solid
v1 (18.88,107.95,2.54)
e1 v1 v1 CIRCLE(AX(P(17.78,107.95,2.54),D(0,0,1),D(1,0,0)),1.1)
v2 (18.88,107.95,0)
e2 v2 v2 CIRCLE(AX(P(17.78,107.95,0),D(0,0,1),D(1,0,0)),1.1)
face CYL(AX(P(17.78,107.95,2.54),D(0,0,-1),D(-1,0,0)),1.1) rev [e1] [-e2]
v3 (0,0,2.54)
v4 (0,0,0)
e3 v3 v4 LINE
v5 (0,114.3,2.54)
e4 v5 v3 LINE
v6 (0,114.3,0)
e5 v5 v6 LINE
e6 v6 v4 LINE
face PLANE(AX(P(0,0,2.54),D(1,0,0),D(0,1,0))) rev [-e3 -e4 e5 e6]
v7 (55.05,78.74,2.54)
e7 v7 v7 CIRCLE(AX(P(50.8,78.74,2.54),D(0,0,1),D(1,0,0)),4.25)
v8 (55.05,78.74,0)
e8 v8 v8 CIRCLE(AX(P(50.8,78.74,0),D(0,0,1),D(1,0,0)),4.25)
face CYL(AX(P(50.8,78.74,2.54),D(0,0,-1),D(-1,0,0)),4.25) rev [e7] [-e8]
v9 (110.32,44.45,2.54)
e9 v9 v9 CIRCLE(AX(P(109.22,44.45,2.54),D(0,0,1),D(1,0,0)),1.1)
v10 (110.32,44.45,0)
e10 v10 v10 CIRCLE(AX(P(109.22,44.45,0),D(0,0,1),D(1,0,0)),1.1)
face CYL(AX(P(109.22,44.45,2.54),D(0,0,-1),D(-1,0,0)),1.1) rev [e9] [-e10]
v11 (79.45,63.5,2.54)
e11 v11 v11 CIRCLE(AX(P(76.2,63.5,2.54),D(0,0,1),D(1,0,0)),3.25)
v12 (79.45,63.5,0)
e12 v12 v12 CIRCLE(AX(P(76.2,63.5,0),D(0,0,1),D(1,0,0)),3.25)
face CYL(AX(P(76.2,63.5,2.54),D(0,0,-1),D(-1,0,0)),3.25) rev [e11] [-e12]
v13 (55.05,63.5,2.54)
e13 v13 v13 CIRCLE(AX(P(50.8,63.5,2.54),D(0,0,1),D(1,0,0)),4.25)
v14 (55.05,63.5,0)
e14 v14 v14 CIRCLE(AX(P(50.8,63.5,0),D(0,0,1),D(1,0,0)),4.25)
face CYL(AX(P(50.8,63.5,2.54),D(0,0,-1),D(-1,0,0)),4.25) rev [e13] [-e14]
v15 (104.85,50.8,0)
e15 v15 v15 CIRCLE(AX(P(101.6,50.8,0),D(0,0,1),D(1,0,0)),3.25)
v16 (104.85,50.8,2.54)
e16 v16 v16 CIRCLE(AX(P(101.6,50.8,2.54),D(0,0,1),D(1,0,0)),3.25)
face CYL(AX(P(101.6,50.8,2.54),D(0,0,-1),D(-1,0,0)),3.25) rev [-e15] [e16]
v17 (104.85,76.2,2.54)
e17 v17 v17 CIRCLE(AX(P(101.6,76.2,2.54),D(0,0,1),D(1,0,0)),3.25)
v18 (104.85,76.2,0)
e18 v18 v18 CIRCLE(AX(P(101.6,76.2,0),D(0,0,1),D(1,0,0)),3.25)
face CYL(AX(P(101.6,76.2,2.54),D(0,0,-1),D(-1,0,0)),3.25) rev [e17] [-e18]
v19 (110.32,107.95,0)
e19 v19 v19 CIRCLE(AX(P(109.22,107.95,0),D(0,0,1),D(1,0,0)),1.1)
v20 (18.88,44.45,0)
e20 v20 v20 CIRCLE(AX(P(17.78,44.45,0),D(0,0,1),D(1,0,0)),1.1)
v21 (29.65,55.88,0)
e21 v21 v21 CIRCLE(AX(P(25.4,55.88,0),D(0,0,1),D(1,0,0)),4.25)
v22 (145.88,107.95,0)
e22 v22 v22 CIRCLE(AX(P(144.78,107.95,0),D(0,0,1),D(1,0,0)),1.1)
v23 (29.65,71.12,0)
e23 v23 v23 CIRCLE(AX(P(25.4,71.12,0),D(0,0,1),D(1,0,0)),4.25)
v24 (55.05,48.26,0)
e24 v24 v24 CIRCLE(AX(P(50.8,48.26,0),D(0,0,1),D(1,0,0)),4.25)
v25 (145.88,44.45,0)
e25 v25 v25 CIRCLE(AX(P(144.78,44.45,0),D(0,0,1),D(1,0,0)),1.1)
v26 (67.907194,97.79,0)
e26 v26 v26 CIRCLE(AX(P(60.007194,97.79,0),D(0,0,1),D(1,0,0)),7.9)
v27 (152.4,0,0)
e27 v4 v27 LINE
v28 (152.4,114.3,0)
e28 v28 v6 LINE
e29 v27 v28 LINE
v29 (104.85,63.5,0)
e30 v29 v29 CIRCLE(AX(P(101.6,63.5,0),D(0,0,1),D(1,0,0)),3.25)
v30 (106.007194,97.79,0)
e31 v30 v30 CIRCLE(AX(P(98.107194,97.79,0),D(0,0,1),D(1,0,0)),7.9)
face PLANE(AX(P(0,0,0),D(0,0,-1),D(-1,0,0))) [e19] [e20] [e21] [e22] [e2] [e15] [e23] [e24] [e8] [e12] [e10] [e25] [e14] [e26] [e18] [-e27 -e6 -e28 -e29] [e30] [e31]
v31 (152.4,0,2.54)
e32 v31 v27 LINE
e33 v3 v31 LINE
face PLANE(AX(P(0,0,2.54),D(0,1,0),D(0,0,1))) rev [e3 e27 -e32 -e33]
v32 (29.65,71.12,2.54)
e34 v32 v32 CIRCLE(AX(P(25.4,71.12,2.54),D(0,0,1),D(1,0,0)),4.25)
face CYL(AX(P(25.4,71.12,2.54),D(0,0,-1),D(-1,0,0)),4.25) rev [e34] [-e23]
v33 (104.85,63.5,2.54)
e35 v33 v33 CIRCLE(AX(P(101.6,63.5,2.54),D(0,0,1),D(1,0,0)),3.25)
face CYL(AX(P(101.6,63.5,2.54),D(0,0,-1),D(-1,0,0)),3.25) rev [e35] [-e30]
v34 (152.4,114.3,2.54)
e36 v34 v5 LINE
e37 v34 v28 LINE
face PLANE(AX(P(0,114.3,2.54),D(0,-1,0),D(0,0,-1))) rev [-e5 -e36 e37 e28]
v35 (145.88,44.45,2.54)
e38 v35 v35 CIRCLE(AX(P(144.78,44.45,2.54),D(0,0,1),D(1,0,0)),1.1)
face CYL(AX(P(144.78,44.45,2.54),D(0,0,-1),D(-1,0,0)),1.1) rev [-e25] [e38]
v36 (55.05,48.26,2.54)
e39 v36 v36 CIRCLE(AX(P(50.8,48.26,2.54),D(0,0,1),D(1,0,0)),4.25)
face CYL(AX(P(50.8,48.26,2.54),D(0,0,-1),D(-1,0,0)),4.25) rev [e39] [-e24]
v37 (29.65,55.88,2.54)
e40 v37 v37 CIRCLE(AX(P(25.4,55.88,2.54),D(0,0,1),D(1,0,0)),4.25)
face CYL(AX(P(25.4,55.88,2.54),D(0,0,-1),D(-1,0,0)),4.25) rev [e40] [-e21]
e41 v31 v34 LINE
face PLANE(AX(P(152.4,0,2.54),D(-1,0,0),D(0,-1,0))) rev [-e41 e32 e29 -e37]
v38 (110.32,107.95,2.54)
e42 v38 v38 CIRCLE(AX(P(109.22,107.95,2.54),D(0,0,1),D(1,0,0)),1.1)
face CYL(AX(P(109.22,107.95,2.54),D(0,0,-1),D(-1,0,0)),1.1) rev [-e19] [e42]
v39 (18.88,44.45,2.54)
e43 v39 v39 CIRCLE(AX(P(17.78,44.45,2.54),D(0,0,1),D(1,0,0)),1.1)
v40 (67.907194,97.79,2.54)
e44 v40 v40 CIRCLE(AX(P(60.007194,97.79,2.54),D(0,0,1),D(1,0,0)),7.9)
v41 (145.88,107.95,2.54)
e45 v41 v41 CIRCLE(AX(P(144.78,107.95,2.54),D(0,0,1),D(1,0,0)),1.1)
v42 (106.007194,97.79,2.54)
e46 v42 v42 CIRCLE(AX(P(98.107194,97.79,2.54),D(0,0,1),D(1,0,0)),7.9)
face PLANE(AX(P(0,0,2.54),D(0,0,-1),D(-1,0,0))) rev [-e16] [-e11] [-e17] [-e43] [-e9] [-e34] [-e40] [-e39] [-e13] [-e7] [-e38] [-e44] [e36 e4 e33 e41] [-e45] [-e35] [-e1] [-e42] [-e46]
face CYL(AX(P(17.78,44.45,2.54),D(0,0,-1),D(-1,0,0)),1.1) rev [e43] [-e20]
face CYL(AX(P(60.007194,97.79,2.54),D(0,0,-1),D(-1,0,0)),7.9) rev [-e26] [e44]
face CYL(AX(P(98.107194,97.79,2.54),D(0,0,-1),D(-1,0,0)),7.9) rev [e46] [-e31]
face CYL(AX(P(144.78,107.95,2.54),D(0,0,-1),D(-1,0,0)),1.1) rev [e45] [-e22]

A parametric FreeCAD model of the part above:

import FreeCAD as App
import Part
import Sketcher


def add_polygon(sketch, points):
    """Adds a closed chain of lines whose ends are joined by coincident constraints."""
    first, n = sketch.GeometryCount, len(points)
    for a, b in zip(points, points[1:] + points[:1]):
        sketch.addGeometry(Part.LineSegment(App.Vector(*a, 0), App.Vector(*b, 0)), False)
    for i in range(n):
        sketch.addConstraint(Sketcher.Constraint("Coincident", first + i, 2, first + (i + 1) % n, 1))

doc = App.newDocument("Part")
body = doc.addObject("PartDesign::Body", "Body")

sketch1 = body.newObject("Sketcher::SketchObject", "Sketch")
sketch1.AttachmentSupport = (doc.getObject("XY_Plane"), [""])
sketch1.MapMode = "FlatFace"
add_polygon(sketch1, [(0, 114.3), (0, 0), (152.4, 0), (152.4, 114.3)])
sketch1.addGeometry(Part.Circle(App.Vector(17.8, 44.5, 0), App.Vector(0, 0, 1), 1.1), False)
sketch1.addGeometry(Part.Circle(App.Vector(25.4, 55.9, 0), App.Vector(0, 0, 1), 4.2), False)
sketch1.addGeometry(Part.Circle(App.Vector(50.8, 48.3, 0), App.Vector(0, 0, 1), 4.2), False)
sketch1.addGeometry(Part.Circle(App.Vector(25.4, 71.1, 0), App.Vector(0, 0, 1), 4.2), False)
sketch1.addGeometry(Part.Circle(App.Vector(50.8, 63.5, 0), App.Vector(0, 0, 1), 4.2), False)
sketch1.addGeometry(Part.Circle(App.Vector(76.2, 63.5, 0), App.Vector(0, 0, 1), 3.2), False)
sketch1.addGeometry(Part.Circle(App.Vector(109.2, 44.5, 0), App.Vector(0, 0, 1), 1.1), False)
sketch1.addGeometry(Part.Circle(App.Vector(101.6, 50.8, 0), App.Vector(0, 0, 1), 3.2), False)
sketch1.addGeometry(Part.Circle(App.Vector(144.8, 44.5, 0), App.Vector(0, 0, 1), 1.1), False)
sketch1.addGeometry(Part.Circle(App.Vector(101.6, 63.5, 0), App.Vector(0, 0, 1), 3.2), False)
sketch1.addGeometry(Part.Circle(App.Vector(50.8, 78.7, 0), App.Vector(0, 0, 1), 4.2), False)
sketch1.addGeometry(Part.Circle(App.Vector(17.8, 108, 0), App.Vector(0, 0, 1), 1.1), False)
sketch1.addGeometry(Part.Circle(App.Vector(60, 97.8, 0), App.Vector(0, 0, 1), 7.9), False)
sketch1.addGeometry(Part.Circle(App.Vector(101.6, 76.2, 0), App.Vector(0, 0, 1), 3.2), False)
sketch1.addGeometry(Part.Circle(App.Vector(98.1, 97.8, 0), App.Vector(0, 0, 1), 7.9), False)
sketch1.addGeometry(Part.Circle(App.Vector(109.2, 108, 0), App.Vector(0, 0, 1), 1.1), False)
sketch1.addGeometry(Part.Circle(App.Vector(144.8, 108, 0), App.Vector(0, 0, 1), 1.1), False)
sketch1.addConstraint(Sketcher.Constraint("Vertical", 0))
sketch1.addConstraint(Sketcher.Constraint("Horizontal", 1))
sketch1.addConstraint(Sketcher.Constraint("Vertical", 2))
sketch1.addConstraint(Sketcher.Constraint("Horizontal", 3))
sketch1.addConstraint(Sketcher.Constraint("Coincident", 0, 2, -1, 1))
sketch1.addConstraint(Sketcher.Constraint("Equal", 5, 6))
sketch1.addConstraint(Sketcher.Constraint("Equal", 6, 7))
sketch1.addConstraint(Sketcher.Constraint("Equal", 7, 8))
sketch1.addConstraint(Sketcher.Constraint("Equal", 4, 10))
sketch1.addConstraint(Sketcher.Constraint("Equal", 9, 11))
sketch1.addConstraint(Sketcher.Constraint("Equal", 10, 12))
sketch1.addConstraint(Sketcher.Constraint("Equal", 11, 13))
sketch1.addConstraint(Sketcher.Constraint("Equal", 8, 14))
sketch1.addConstraint(Sketcher.Constraint("Equal", 12, 15))
sketch1.addConstraint(Sketcher.Constraint("Equal", 13, 17))
sketch1.addConstraint(Sketcher.Constraint("Equal", 16, 18))
sketch1.addConstraint(Sketcher.Constraint("Equal", 15, 19))
sketch1.addConstraint(Sketcher.Constraint("Equal", 19, 20))
sketch1.addConstraint(Sketcher.Constraint("Horizontal", 8, 3, 9, 3))
sketch1.addConstraint(Sketcher.Constraint("Horizontal", 4, 3, 10, 3))
sketch1.addConstraint(Sketcher.Constraint("Horizontal", 10, 3, 12, 3))
sketch1.addConstraint(Sketcher.Constraint("Horizontal", 9, 3, 13, 3))
sketch1.addConstraint(Sketcher.Constraint("Horizontal", 16, 3, 18, 3))
sketch1.addConstraint(Sketcher.Constraint("Horizontal", 15, 3, 19, 3))
sketch1.addConstraint(Sketcher.Constraint("Horizontal", 19, 3, 20, 3))
sketch1.addConstraint(Sketcher.Constraint("Vertical", 5, 3, 7, 3))
sketch1.addConstraint(Sketcher.Constraint("Vertical", 6, 3, 8, 3))
sketch1.addConstraint(Sketcher.Constraint("Vertical", 11, 3, 13, 3))
sketch1.addConstraint(Sketcher.Constraint("Vertical", 8, 3, 14, 3))
sketch1.addConstraint(Sketcher.Constraint("Vertical", 4, 3, 15, 3))
sketch1.addConstraint(Sketcher.Constraint("Vertical", 13, 3, 17, 3))
sketch1.addConstraint(Sketcher.Constraint("Vertical", 10, 3, 19, 3))
sketch1.addConstraint(Sketcher.Constraint("Vertical", 12, 3, 20, 3))
sketch1.addConstraint(Sketcher.Constraint("Diameter", 4, 2.2))
sketch1.addConstraint(Sketcher.Constraint("Diameter", 5, 8.5))
sketch1.addConstraint(Sketcher.Constraint("Diameter", 9, 6.5))
sketch1.addConstraint(Sketcher.Constraint("Diameter", 16, 15.8))
sketch1.addConstraint(Sketcher.Constraint("DistanceX", 1, 1, 1, 2, 152.4))
sketch1.addConstraint(Sketcher.Constraint("DistanceY", 0, 2, 0, 1, 114.3))
sketch1.addConstraint(Sketcher.Constraint("DistanceX", -1, 1, 5, 3, 25.4))
sketch1.addConstraint(Sketcher.Constraint("DistanceX", -1, 1, 6, 3, 50.8))
sketch1.addConstraint(Sketcher.Constraint("DistanceY", -1, 1, 8, 3, 63.5))
sketch1.addConstraint(Sketcher.Constraint("DistanceX", -1, 1, 9, 3, 76.2))
sketch1.addConstraint(Sketcher.Constraint("DistanceX", -1, 1, 11, 3, 101.6))
sketch1.addConstraint(Sketcher.Constraint("DistanceY", -1, 1, 11, 3, 50.8))
sketch1.addConstraint(Sketcher.Constraint("DistanceY", -1, 1, 17, 3, 76.2))
sketch1.addConstraint(Sketcher.Constraint("DistanceY", 4, 3, 15, 3, 63.5))
sketch1.addConstraint(Sketcher.Constraint("DistanceX", 16, 3, 18, 3, 38.1))
sketch1.addConstraint(Sketcher.Constraint("DistanceX", -1, 1, 4, 3, 17.78))
sketch1.addConstraint(Sketcher.Constraint("DistanceY", -1, 1, 4, 3, 44.45))
sketch1.addConstraint(Sketcher.Constraint("DistanceY", -1, 1, 5, 3, 55.88))
sketch1.addConstraint(Sketcher.Constraint("DistanceY", -1, 1, 6, 3, 48.26))
sketch1.addConstraint(Sketcher.Constraint("DistanceY", -1, 1, 7, 3, 71.12))
sketch1.addConstraint(Sketcher.Constraint("DistanceX", -1, 1, 10, 3, 109.22))
sketch1.addConstraint(Sketcher.Constraint("DistanceX", -1, 1, 12, 3, 144.78))
sketch1.addConstraint(Sketcher.Constraint("DistanceY", -1, 1, 14, 3, 78.74))
sketch1.addConstraint(Sketcher.Constraint("DistanceY", -1, 1, 16, 3, 97.79))
sketch1.addConstraint(Sketcher.Constraint("DistanceX", -1, 1, 16, 3, 60.007194))
pad1 = body.newObject("PartDesign::Pad", "Pad")
pad1.Profile = sketch1
pad1.Length = 2.54

doc.recompute()
